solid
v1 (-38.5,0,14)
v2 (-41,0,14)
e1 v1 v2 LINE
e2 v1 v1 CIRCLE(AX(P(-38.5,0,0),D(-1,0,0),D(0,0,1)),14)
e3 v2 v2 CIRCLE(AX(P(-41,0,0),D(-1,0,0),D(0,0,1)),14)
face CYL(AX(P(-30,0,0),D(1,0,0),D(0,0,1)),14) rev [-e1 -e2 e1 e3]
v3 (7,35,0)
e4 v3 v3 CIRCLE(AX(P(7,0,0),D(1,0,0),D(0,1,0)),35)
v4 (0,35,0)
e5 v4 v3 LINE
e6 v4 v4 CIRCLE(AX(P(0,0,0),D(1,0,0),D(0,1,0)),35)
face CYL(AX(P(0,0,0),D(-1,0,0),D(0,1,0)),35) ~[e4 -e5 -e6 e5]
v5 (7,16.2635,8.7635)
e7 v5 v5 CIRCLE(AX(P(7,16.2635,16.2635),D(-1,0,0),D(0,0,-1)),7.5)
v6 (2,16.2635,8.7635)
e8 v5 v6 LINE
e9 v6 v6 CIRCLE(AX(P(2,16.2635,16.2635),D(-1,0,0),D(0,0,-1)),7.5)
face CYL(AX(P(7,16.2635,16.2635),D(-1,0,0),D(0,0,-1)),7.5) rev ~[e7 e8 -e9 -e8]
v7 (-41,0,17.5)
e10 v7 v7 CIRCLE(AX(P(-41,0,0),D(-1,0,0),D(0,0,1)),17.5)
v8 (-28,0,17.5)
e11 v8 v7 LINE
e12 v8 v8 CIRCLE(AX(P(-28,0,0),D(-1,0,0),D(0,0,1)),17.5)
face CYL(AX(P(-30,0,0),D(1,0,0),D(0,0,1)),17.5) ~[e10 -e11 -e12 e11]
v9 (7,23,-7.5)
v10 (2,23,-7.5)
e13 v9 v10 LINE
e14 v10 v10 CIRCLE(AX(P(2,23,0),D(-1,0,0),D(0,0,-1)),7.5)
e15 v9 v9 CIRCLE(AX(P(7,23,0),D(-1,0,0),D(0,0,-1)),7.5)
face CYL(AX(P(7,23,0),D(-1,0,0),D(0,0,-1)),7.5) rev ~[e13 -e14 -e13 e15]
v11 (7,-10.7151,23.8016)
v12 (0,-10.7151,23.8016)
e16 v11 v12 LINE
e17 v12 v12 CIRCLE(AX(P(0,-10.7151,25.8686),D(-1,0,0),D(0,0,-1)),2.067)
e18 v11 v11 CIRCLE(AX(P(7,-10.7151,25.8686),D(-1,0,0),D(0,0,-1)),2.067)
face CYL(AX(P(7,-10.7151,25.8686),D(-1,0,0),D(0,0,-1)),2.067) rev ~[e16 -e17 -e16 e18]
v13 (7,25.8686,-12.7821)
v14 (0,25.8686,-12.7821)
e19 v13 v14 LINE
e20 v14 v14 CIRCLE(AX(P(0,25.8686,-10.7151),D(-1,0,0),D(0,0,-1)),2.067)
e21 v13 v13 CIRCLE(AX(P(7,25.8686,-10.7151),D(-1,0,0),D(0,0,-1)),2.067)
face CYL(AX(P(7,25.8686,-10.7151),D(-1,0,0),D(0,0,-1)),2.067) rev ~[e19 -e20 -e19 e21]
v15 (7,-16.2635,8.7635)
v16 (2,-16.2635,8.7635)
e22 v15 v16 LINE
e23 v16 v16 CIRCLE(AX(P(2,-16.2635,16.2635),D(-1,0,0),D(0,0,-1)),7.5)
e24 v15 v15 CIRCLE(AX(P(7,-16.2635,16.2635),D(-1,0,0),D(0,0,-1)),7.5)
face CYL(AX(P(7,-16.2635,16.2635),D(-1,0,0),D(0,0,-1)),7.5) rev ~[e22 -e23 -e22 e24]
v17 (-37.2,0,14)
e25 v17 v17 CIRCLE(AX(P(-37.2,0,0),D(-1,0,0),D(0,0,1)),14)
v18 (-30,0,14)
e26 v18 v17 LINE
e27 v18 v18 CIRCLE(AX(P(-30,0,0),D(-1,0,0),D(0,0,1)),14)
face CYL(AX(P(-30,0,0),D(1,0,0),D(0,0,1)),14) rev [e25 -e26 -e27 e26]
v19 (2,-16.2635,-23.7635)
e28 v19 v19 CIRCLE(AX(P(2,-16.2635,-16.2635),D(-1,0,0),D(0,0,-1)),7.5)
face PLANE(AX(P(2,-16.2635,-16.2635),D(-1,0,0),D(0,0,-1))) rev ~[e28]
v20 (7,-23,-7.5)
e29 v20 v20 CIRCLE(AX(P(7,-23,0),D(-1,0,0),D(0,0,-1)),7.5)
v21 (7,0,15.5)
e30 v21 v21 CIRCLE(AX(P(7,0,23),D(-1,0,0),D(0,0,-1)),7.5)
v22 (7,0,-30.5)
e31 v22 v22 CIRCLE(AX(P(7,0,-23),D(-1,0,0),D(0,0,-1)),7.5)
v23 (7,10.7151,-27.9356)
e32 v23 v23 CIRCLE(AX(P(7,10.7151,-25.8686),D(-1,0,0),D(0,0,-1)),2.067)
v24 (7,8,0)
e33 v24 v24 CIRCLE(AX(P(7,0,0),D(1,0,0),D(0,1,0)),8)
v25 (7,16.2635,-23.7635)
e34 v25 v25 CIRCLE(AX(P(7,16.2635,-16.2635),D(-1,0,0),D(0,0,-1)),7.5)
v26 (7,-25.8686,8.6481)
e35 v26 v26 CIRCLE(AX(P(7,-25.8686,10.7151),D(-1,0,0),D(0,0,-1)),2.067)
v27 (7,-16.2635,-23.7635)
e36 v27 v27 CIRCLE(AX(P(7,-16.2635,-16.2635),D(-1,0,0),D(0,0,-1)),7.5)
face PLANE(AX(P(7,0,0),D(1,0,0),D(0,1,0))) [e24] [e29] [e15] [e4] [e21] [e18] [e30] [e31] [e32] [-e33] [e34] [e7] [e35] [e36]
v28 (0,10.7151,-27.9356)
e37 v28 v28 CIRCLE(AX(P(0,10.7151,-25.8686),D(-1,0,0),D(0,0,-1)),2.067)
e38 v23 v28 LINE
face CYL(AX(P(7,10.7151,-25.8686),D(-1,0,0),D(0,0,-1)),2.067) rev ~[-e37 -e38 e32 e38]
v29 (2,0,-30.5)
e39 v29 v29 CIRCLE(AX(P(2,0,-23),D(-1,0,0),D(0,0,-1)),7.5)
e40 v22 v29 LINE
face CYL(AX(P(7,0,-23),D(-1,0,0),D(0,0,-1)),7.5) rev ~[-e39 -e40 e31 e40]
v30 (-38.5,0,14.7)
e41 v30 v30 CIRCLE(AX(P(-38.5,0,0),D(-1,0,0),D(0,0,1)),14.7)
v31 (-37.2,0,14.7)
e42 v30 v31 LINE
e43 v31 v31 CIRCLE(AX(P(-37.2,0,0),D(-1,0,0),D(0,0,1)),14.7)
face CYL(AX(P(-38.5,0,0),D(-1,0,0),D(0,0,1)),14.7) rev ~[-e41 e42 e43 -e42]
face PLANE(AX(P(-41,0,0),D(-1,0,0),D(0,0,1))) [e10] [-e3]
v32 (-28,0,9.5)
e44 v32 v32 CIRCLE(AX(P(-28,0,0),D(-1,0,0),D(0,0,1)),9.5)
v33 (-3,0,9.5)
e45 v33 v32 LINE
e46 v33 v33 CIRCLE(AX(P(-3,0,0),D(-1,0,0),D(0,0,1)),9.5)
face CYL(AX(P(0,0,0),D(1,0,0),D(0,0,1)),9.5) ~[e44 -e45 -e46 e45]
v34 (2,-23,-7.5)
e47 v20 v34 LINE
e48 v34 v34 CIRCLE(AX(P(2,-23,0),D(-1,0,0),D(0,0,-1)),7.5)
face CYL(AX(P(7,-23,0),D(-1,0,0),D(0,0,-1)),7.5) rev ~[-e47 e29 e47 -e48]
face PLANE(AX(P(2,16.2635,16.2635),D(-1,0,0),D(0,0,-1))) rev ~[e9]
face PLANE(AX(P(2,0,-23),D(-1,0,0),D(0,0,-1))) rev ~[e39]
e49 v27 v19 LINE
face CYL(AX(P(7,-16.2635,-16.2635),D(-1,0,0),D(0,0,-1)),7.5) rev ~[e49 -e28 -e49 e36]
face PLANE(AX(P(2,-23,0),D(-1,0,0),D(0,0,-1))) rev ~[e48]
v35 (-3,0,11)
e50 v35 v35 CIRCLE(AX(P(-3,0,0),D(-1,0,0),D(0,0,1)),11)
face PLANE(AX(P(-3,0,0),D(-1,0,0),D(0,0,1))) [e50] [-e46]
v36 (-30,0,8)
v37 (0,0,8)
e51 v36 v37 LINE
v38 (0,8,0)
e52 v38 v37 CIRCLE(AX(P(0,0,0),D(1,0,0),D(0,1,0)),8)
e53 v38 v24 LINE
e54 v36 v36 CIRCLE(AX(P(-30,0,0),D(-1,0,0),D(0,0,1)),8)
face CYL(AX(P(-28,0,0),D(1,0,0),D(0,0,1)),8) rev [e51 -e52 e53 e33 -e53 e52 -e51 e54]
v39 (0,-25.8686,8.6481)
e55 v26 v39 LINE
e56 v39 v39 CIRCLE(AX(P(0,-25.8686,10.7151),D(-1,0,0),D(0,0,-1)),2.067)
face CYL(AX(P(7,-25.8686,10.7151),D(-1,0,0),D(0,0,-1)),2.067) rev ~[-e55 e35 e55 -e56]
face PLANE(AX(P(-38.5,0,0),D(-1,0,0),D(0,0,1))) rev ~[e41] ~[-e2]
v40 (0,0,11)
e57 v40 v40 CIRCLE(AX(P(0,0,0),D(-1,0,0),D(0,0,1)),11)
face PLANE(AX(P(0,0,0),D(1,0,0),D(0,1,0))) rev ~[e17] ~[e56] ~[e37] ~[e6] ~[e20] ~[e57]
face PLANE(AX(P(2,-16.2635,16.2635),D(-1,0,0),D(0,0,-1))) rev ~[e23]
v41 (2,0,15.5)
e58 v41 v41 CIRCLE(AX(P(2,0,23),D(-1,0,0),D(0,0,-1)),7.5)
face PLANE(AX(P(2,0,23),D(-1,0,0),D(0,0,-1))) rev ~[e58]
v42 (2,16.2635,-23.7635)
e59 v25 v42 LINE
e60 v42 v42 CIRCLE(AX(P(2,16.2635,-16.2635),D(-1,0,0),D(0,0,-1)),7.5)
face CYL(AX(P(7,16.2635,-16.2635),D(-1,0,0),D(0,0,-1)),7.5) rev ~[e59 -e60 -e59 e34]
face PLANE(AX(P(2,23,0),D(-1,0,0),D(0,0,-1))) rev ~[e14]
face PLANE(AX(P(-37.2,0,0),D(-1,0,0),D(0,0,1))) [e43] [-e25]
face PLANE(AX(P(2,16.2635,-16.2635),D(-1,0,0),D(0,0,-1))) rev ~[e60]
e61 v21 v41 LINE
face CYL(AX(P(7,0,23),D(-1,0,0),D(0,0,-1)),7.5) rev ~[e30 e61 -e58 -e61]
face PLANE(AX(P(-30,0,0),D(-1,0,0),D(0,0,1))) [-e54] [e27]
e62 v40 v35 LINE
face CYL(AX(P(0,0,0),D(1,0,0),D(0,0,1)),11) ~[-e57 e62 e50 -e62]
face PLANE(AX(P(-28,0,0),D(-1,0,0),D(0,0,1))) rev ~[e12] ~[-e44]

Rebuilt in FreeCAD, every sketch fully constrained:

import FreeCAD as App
import Part
import Sketcher
Q = App.Units.Quantity

doc = App.newDocument("Part")
body = doc.addObject("PartDesign::Body", "Body")

sketch1 = doc.addObject("Sketcher::SketchObject", "Sketch")
body.addObject(sketch1)
sketch1.AttachmentSupport = (doc.YZ_Plane, [""])
sketch1.MapMode = "FlatFace"
sketch1.addGeometry([
    Part.Circle(App.Vector(0, 0, 0), App.Vector(0, 0, 1), 35),
    Part.Circle(App.Vector(0, 0, 0), App.Vector(0, 0, 1), 8),
], False)
sketch1.addConstraint([
    Sketcher.Constraint("Coincident", 0, 3, -1, 1),
    Sketcher.Constraint("Coincident", 1, 3, -1, 1),
    Sketcher.Constraint("Diameter", 0, Q("70 mm")),
    Sketcher.Constraint("Diameter", 1, Q("16 mm")),
])
pad1 = doc.addObject("PartDesign::Pad", "Pad")
body.addObject(pad1)
pad1.Profile = sketch1
pad1.Length = 7

sketch2 = doc.addObject("Sketcher::SketchObject", "Sketch001")
body.addObject(sketch2)
sketch2.AttachmentSupport = (doc.YZ_Plane, [""])
sketch2.MapMode = "FlatFace"
sketch2.AttachmentOffset = App.Placement(App.Vector(0, 0, 7), App.Rotation())
sketch2.addGeometry([
    Part.Circle(App.Vector(0, 23, 0), App.Vector(0, 0, 1), 8),
    Part.Circle(App.Vector(-16, 16, 0), App.Vector(0, 0, 1), 8),
    Part.Circle(App.Vector(-23, 0, 0), App.Vector(0, 0, 1), 8),
    Part.Circle(App.Vector(-16, -16, 0), App.Vector(0, 0, 1), 8),
    Part.Circle(App.Vector(0, -23, 0), App.Vector(0, 0, 1), 8),
    Part.Circle(App.Vector(16, -16, 0), App.Vector(0, 0, 1), 8),
    Part.Circle(App.Vector(23, 0, 0), App.Vector(0, 0, 1), 8),
    Part.Circle(App.Vector(16, 16, 0), App.Vector(0, 0, 1), 8),
], False)
sketch2.addConstraint([
    Sketcher.Constraint("Equal", 0, 1),
    Sketcher.Constraint("Equal", 1, 2),
    Sketcher.Constraint("Equal", 2, 3),
    Sketcher.Constraint("Equal", 3, 4),
    Sketcher.Constraint("Equal", 4, 5),
    Sketcher.Constraint("Equal", 5, 6),
    Sketcher.Constraint("Equal", 6, 7),
    Sketcher.Constraint("Symmetric", 0, 3, 4, 3, -1, 1),
    Sketcher.Constraint("Symmetric", 1, 3, 5, 3, -1, 1),
    Sketcher.Constraint("Symmetric", 2, 3, 6, 3, -1, 1),
    Sketcher.Constraint("Symmetric", 3, 3, 7, 3, -1, 1),
    Sketcher.Constraint("Symmetric", 3, 3, 5, 3, -2),
    Sketcher.Constraint("PointOnObject", 0, 3, -2),
    Sketcher.Constraint("PointOnObject", 2, 3, -1),
    Sketcher.Constraint("Diameter", 0, Q("15 mm")),
    Sketcher.Constraint("DistanceY", -1, 1, 0, 3, Q("23 mm")),
    Sketcher.Constraint("DistanceX", 2, 3, -1, 1, Q("23 mm")),
    Sketcher.Constraint("DistanceY", 3, 3, 1, 3, Q("32.527 mm")),
    Sketcher.Constraint("DistanceX", 3, 3, 5, 3, Q("32.527 mm")),
])
doc.recompute()
hole = doc.addObject("PartDesign::Hole", "Hole")
body.addObject(hole)
hole.Profile = sketch2
hole.ThreadType = "None"
hole.Diameter = 15
hole.DepthType = "Dimension"
hole.Depth = 5
hole.DrillPoint = "Flat"

sketch3 = doc.addObject("Sketcher::SketchObject", "Sketch002")
body.addObject(sketch3)
sketch3.AttachmentSupport = (doc.YZ_Plane, [""])
sketch3.MapMode = "FlatFace"
sketch3.addGeometry([
    Part.Circle(App.Vector(0, 0, 0), App.Vector(0, 0, 1), 10),
    Part.Circle(App.Vector(0, 0, 0), App.Vector(0, 0, 1), 8),
], False)
sketch3.addConstraint([
    Sketcher.Constraint("Coincident", 0, 3, -1, 1),
    Sketcher.Constraint("Coincident", 1, 3, -1, 1),
    Sketcher.Constraint("Diameter", 0, Q("19 mm")),
    Sketcher.Constraint("Diameter", 1, Q("16 mm")),
])
pad2 = doc.addObject("PartDesign::Pad", "Pad001")
body.addObject(pad2)
pad2.Profile = sketch3
pad2.Length = 28
pad2.Reversed = True

sketch4 = doc.addObject("Sketcher::SketchObject", "Sketch003")
body.addObject(sketch4)
sketch4.AttachmentSupport = (doc.YZ_Plane, [""])
sketch4.MapMode = "FlatFace"
sketch4.addGeometry([
    Part.Circle(App.Vector(0, 0, 0), App.Vector(0, 0, 1), 11),
    Part.Circle(App.Vector(0, 0, 0), App.Vector(0, 0, 1), 10),
], False)
sketch4.addConstraint([
    Sketcher.Constraint("Coincident", 0, 3, -1, 1),
    Sketcher.Constraint("Coincident", 1, 3, -1, 1),
    Sketcher.Constraint("Diameter", 0, Q("22 mm")),
    Sketcher.Constraint("Diameter", 1, Q("19 mm")),
])
pad3 = doc.addObject("PartDesign::Pad", "Pad002")
body.addObject(pad3)
pad3.Profile = sketch4
pad3.Length = 3
pad3.Reversed = True

sketch5 = doc.addObject("Sketcher::SketchObject", "Sketch004")
body.addObject(sketch5)
sketch5.AttachmentSupport = (doc.YZ_Plane, [""])
sketch5.MapMode = "FlatFace"
sketch5.AttachmentOffset = App.Placement(App.Vector(0, 0, -28), App.Rotation())
sketch5.addGeometry([
    Part.Circle(App.Vector(0, 0, 0), App.Vector(0, 0, 1), 18),
    Part.Circle(App.Vector(0, 0, 0), App.Vector(0, 0, 1), 8),
], False)
sketch5.addConstraint([
    Sketcher.Constraint("Coincident", 0, 3, -1, 1),
    Sketcher.Constraint("Coincident", 1, 3, -1, 1),
    Sketcher.Constraint("Diameter", 0, Q("35 mm")),
    Sketcher.Constraint("Diameter", 1, Q("16 mm")),
])
pad4 = doc.addObject("PartDesign::Pad", "Pad003")
body.addObject(pad4)
pad4.Profile = sketch5
pad4.Length = 2
pad4.Reversed = True

sketch6 = doc.addObject("Sketcher::SketchObject", "Sketch005")
body.addObject(sketch6)
sketch6.AttachmentSupport = (doc.YZ_Plane, [""])
sketch6.MapMode = "FlatFace"
sketch6.AttachmentOffset = App.Placement(App.Vector(0, 0, -30), App.Rotation())
sketch6.addGeometry([
    Part.Circle(App.Vector(0, 0, 0), App.Vector(0, 0, 1), 18),
    Part.Circle(App.Vector(0, 0, 0), App.Vector(0, 0, 1), 14),
], False)
sketch6.addConstraint([
    Sketcher.Constraint("Coincident", 0, 3, -1, 1),
    Sketcher.Constraint("Coincident", 1, 3, -1, 1),
    Sketcher.Constraint("Diameter", 0, Q("35 mm")),
    Sketcher.Constraint("Diameter", 1, Q("28 mm")),
])
pad5 = doc.addObject("PartDesign::Pad", "Pad004")
body.addObject(pad5)
pad5.Profile = sketch6
pad5.Length = 11
pad5.Reversed = True

sketch7 = doc.addObject("Sketcher::SketchObject", "Sketch006")
body.addObject(sketch7)
sketch7.AttachmentSupport = (doc.YZ_Plane, [""])
sketch7.MapMode = "FlatFace"
sketch7.AttachmentOffset = App.Placement(App.Vector(0, 0, -38.5), App.Rotation())
sketch7.addGeometry([
    Part.Circle(App.Vector(0, 0, 0), App.Vector(0, 0, 1), 15),
    Part.Circle(App.Vector(0, 0, 0), App.Vector(0, 0, 1), 14),
], False)
sketch7.addConstraint([
    Sketcher.Constraint("Coincident", 0, 3, -1, 1),
    Sketcher.Constraint("Coincident", 1, 3, -1, 1),
    Sketcher.Constraint("Diameter", 0, Q("29.4 mm")),
    Sketcher.Constraint("Diameter", 1, Q("28 mm")),
])
pocket1 = doc.addObject("PartDesign::Pocket", "Pocket")
body.addObject(pocket1)
pocket1.Profile = sketch7
pocket1.Length = 1.3
pocket1.Reversed = True

sketch8 = doc.addObject("Sketcher::SketchObject", "Sketch007")
body.addObject(sketch8)
sketch8.AttachmentSupport = (doc.YZ_Plane, [""])
sketch8.MapMode = "FlatFace"
sketch8.AttachmentOffset = App.Placement(App.Vector(0, 0, 7), App.Rotation())
sketch8.addGeometry([
    Part.Circle(App.Vector(25.9, -10.7, 0), App.Vector(0, 0, 1), 2.1),
    Part.Circle(App.Vector(10.7, -25.9, 0), App.Vector(0, 0, 1), 2.1),
    Part.Circle(App.Vector(-25.9, 10.7, 0), App.Vector(0, 0, 1), 2.1),
    Part.Circle(App.Vector(-10.7, 25.9, 0), App.Vector(0, 0, 1), 2.1),
], False)
sketch8.addConstraint([
    Sketcher.Constraint("Equal", 0, 1),
    Sketcher.Constraint("Equal", 1, 2),
    Sketcher.Constraint("Equal", 2, 3),
    Sketcher.Constraint("Symmetric", 0, 3, 2, 3, -1, 1),
    Sketcher.Constraint("Symmetric", 1, 3, 3, 3, -1, 1),
    Sketcher.Constraint("Diameter", 0, Q("4.134 mm")),
    Sketcher.Constraint("DistanceY", 0, 3, -1, 1, Q("10.715 mm")),
    Sketcher.Constraint("DistanceX", -1, 1, 1, 3, Q("10.715 mm")),
    Sketcher.Constraint("DistanceX", -1, 1, 0, 3, Q("25.8686 mm")),
    Sketcher.Constraint("DistanceY", 1, 3, -1, 1, Q("25.8686 mm")),
])
doc.recompute()
hole2 = doc.addObject("PartDesign::Hole", "Hole001")
body.addObject(hole2)
hole2.Profile = sketch8
hole2.ThreadType = "None"
hole2.Diameter = 4.134
hole2.DepthType = "Dimension"
hole2.Depth = 14.2
hole2.DrillPoint = "Angled"
hole2.DrillPointAngle = 118

doc.recompute()
